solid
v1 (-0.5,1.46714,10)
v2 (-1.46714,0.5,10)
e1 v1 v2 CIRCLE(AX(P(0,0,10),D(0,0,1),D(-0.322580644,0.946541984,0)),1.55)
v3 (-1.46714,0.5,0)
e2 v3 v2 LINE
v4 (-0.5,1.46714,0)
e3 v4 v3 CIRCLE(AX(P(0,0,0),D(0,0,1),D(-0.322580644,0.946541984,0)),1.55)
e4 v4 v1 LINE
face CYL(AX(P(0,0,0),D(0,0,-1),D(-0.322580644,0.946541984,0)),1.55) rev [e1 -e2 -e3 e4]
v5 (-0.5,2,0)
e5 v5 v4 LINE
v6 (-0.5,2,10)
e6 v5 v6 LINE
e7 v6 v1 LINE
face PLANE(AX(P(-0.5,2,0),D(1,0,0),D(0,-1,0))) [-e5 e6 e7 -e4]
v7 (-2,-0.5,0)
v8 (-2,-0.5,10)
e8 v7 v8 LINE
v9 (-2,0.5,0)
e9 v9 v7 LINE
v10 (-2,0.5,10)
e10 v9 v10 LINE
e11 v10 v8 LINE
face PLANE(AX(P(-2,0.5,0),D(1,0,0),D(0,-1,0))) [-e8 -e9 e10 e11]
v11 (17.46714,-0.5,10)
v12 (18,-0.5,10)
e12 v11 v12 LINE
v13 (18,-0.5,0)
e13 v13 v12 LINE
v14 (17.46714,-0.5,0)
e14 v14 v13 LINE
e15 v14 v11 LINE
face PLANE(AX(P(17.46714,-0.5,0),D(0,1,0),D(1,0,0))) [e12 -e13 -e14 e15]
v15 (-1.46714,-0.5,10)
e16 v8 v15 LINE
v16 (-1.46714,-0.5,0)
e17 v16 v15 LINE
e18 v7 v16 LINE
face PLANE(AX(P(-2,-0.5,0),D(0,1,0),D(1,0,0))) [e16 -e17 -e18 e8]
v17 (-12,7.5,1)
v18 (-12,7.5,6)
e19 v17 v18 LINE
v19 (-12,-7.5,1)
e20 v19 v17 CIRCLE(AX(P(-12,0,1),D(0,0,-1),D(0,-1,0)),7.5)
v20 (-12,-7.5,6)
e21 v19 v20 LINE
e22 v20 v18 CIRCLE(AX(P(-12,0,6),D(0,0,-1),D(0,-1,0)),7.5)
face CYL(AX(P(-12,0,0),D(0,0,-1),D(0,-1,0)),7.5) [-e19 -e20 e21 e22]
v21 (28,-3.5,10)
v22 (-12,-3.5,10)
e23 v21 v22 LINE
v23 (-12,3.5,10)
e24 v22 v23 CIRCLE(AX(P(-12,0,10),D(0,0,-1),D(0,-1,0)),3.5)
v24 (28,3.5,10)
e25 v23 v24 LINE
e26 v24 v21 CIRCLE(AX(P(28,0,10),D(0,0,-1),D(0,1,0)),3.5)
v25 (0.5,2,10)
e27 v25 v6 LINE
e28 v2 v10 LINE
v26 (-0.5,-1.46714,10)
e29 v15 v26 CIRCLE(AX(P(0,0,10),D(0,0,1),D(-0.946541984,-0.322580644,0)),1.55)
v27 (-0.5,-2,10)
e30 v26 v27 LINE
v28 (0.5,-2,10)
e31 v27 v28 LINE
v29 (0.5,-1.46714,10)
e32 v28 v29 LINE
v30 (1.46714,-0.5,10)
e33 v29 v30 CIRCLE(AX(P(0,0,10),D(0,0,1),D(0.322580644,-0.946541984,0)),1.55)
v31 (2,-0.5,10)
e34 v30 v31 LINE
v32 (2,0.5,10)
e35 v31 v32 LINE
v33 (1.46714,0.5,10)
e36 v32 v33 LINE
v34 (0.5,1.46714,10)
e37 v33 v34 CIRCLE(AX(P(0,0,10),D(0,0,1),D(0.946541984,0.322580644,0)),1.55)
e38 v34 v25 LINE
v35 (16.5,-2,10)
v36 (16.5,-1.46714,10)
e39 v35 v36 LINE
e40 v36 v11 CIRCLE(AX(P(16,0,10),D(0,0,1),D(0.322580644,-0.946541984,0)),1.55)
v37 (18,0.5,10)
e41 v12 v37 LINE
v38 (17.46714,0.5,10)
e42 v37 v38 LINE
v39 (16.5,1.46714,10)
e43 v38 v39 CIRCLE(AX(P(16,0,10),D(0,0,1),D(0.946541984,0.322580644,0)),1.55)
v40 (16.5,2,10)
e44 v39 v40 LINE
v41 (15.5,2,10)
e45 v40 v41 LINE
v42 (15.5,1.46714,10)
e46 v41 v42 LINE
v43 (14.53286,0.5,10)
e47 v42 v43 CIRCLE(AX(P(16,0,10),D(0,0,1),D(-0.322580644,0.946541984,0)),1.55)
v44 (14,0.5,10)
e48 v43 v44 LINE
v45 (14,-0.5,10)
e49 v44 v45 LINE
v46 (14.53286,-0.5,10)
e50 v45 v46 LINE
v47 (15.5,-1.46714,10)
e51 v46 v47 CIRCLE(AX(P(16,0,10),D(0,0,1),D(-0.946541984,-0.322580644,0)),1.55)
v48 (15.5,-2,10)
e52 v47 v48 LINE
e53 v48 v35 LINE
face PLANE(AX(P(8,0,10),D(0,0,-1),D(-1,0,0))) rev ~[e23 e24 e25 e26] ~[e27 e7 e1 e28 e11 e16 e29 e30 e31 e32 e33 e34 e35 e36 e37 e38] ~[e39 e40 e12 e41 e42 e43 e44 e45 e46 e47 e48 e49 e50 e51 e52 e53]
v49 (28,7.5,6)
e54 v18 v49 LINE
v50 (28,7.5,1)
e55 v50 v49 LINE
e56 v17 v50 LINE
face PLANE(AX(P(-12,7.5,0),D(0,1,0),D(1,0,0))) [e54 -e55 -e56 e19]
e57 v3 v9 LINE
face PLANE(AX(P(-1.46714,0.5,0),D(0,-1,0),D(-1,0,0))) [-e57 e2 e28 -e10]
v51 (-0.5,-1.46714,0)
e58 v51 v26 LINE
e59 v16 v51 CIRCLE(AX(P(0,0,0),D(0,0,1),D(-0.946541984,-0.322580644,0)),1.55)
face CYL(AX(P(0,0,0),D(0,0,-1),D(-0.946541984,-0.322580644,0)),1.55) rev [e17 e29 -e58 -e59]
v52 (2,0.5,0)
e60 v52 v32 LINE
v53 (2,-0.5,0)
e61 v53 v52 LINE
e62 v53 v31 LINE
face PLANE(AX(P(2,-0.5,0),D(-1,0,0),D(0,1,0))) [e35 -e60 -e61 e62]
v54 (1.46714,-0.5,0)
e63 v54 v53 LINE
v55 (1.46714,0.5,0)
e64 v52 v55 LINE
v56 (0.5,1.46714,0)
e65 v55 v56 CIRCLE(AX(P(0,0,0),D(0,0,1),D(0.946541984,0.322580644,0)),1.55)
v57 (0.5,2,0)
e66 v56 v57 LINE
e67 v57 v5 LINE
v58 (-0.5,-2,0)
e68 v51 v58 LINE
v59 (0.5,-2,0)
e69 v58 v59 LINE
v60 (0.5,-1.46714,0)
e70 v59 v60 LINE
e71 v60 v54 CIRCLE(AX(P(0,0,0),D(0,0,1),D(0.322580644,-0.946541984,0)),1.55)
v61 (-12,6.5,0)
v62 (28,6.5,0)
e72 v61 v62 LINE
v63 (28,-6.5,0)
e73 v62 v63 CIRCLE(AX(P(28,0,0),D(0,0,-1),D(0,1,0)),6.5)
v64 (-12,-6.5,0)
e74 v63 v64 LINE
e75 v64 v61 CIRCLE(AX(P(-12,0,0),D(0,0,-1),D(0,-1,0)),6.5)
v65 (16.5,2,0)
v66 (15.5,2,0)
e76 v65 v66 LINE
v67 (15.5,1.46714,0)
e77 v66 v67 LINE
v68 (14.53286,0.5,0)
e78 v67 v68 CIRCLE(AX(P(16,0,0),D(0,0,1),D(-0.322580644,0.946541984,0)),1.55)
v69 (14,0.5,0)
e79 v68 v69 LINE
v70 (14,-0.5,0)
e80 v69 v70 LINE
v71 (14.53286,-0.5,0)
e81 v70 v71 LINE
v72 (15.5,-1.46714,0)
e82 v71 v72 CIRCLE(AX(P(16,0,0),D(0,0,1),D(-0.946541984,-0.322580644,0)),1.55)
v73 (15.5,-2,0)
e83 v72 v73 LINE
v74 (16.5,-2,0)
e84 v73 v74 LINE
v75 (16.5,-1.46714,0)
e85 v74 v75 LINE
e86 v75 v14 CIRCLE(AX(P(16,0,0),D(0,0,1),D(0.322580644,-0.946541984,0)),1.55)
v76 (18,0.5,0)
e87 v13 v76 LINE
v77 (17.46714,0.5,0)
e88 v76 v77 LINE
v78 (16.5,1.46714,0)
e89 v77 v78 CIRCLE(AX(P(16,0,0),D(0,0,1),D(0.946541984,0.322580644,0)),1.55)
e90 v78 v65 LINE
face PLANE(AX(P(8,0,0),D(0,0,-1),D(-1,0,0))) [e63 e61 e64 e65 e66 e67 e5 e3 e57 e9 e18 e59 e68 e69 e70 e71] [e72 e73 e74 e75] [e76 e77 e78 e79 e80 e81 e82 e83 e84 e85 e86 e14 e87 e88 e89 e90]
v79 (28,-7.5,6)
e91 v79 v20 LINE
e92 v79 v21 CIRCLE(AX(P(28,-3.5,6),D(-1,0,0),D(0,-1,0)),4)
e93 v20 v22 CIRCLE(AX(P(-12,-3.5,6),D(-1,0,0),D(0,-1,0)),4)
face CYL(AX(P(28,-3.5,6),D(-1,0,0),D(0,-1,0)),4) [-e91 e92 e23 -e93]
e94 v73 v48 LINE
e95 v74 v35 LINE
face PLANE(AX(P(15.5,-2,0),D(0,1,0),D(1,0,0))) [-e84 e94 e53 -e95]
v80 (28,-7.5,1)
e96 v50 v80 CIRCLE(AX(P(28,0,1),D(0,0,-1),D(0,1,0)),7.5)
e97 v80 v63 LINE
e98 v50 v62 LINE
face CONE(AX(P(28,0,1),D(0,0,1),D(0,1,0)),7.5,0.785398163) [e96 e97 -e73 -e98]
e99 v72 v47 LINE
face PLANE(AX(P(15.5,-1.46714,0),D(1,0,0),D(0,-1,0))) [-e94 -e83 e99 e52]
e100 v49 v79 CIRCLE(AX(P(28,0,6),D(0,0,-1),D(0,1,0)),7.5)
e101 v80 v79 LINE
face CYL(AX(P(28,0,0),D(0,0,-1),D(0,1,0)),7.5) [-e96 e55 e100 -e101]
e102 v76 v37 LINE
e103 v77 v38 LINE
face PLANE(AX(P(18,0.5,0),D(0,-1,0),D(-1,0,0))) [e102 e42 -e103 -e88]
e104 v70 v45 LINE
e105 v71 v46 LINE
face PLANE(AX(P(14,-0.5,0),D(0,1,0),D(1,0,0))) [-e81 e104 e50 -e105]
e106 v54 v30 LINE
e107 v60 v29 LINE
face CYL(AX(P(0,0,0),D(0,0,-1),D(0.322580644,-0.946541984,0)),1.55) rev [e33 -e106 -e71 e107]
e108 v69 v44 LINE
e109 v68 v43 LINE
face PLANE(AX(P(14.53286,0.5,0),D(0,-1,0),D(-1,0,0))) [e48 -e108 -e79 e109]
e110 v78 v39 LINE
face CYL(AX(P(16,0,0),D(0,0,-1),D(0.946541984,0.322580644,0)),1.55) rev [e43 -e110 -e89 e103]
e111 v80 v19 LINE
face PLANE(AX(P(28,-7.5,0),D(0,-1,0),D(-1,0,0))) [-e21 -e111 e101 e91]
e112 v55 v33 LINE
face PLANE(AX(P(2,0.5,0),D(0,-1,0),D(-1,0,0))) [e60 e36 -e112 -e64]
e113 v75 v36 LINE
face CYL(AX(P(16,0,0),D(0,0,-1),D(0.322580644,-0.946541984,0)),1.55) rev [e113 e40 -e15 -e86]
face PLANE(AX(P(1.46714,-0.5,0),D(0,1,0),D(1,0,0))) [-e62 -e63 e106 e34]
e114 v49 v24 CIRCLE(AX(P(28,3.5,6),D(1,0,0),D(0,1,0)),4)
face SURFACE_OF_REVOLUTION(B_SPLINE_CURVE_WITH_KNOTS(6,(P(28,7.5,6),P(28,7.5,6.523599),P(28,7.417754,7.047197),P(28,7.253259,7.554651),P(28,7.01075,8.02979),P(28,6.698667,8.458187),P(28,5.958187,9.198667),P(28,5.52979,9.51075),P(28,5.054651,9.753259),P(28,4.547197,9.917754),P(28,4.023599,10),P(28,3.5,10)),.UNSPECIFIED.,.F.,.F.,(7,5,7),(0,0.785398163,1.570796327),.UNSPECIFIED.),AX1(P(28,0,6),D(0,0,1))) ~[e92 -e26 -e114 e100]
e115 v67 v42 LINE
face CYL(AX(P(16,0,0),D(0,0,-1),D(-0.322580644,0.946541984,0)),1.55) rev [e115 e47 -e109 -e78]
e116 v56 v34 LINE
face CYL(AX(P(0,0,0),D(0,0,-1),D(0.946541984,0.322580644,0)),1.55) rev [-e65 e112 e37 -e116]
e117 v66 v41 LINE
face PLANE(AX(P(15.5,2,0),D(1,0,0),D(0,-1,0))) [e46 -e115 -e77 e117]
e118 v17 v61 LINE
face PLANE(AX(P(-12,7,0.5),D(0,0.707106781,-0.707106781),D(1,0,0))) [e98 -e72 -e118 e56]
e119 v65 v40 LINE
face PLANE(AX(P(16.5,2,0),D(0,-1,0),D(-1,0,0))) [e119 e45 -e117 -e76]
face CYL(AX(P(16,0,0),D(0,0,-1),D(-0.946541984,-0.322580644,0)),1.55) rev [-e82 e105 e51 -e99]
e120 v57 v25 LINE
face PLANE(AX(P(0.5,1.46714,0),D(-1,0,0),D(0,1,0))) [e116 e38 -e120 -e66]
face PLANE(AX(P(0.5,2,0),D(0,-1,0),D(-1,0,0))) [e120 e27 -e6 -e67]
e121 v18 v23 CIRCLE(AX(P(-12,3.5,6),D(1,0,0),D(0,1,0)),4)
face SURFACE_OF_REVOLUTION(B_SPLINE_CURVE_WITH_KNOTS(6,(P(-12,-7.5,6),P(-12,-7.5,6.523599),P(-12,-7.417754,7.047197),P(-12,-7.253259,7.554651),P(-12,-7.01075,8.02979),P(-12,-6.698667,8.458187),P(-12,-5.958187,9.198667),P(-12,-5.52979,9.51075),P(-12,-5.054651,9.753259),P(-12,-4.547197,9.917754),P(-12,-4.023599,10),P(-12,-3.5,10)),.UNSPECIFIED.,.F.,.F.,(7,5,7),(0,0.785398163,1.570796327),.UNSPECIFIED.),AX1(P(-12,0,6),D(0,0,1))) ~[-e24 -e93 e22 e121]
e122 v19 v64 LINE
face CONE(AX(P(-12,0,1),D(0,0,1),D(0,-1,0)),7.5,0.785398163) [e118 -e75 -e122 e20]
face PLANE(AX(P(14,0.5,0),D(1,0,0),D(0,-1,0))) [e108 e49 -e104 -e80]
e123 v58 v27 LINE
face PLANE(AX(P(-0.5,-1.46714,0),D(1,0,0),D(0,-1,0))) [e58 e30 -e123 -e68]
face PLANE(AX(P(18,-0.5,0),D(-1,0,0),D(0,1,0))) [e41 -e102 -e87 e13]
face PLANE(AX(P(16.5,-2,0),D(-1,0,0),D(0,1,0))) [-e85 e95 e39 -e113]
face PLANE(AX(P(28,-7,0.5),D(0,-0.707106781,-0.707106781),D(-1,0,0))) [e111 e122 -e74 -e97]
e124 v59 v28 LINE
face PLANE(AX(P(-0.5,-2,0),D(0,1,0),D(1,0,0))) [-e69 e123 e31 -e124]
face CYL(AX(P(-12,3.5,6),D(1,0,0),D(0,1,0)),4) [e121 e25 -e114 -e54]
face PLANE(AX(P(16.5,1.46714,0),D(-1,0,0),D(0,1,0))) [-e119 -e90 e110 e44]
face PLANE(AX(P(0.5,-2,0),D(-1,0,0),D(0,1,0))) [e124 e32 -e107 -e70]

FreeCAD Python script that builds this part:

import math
import FreeCAD as App
import Part
import Sketcher


def edges_at(feature, points):
    """Names of the edges that pass closest to the given points."""
    edges = feature.Shape.Edges
    near = lambda p: min(range(len(edges)), key=lambda i: edges[i].distToShape(Part.Vertex(*p))[0])
    return sorted({f"Edge{near(p) + 1}" for p in points})

doc = App.newDocument("Part")
body = doc.addObject("PartDesign::Body", "Body")

# Sketch on XY plane
sketch1 = body.newObject("Sketcher::SketchObject", "Sketch")
sketch1.AttachmentSupport = (doc.getObject("XY_Plane"), [""])
sketch1.MapMode = "FlatFace"
sketch1.addGeometry([
    Part.LineSegment(App.Vector(28, 7.5, 0), App.Vector(-12, 7.5, 0)),  # 0
    Part.ArcOfCircle(Part.Circle(App.Vector(-12, 0, 0), App.Vector(0, 0, 1), 7.5), math.radians(90), math.radians(270)),  # 1
    Part.LineSegment(App.Vector(-12, -7.5, 0), App.Vector(28, -7.5, 0)),  # 2
    Part.ArcOfCircle(Part.Circle(App.Vector(28, 0, 0), App.Vector(0, 0, 1), 7.5), math.radians(-90), math.radians(90)),  # 3
    Part.LineSegment(App.Vector(18, -0.5, 0), App.Vector(17.5, -0.5, 0)),  # 4
    Part.ArcOfCircle(Part.Circle(App.Vector(16, 0, 0), App.Vector(0, 0, 1), 1.5), math.radians(-71), math.radians(-19)),  # 5
    Part.LineSegment(App.Vector(16.5, -1.5, 0), App.Vector(16.5, -2, 0)),  # 6
    Part.LineSegment(App.Vector(16.5, -2, 0), App.Vector(15.5, -2, 0)),  # 7
    Part.LineSegment(App.Vector(15.5, -2, 0), App.Vector(15.5, -1.5, 0)),  # 8
    Part.ArcOfCircle(Part.Circle(App.Vector(16, 0, 0), App.Vector(0, 0, 1), 1.5), math.radians(-161), math.radians(-109)),  # 9
    Part.LineSegment(App.Vector(14.5, -0.5, 0), App.Vector(14, -0.5, 0)),  # 10
    Part.LineSegment(App.Vector(14, -0.5, 0), App.Vector(14, 0.5, 0)),  # 11
    Part.LineSegment(App.Vector(14, 0.5, 0), App.Vector(14.5, 0.5, 0)),  # 12
    Part.ArcOfCircle(Part.Circle(App.Vector(16, 0, 0), App.Vector(0, 0, 1), 1.5), math.radians(109), math.radians(161)),  # 13
    Part.LineSegment(App.Vector(15.5, 1.5, 0), App.Vector(15.5, 2, 0)),  # 14
    Part.LineSegment(App.Vector(15.5, 2, 0), App.Vector(16.5, 2, 0)),  # 15
    Part.LineSegment(App.Vector(16.5, 2, 0), App.Vector(16.5, 1.5, 0)),  # 16
    Part.ArcOfCircle(Part.Circle(App.Vector(16, 0, 0), App.Vector(0, 0, 1), 1.5), math.radians(19), math.radians(71)),  # 17
    Part.LineSegment(App.Vector(17.5, 0.5, 0), App.Vector(18, 0.5, 0)),  # 18
    Part.LineSegment(App.Vector(18, 0.5, 0), App.Vector(18, -0.5, 0)),  # 19
    Part.LineSegment(App.Vector(-0.5, -2, 0), App.Vector(-0.5, -1.5, 0)),  # 20
    Part.ArcOfCircle(Part.Circle(App.Vector(0, 0, 0), App.Vector(0, 0, 1), 1.5), math.radians(-161), math.radians(-109)),  # 21
    Part.LineSegment(App.Vector(-1.5, -0.5, 0), App.Vector(-2, -0.5, 0)),  # 22
    Part.LineSegment(App.Vector(-2, -0.5, 0), App.Vector(-2, 0.5, 0)),  # 23
    Part.LineSegment(App.Vector(-2, 0.5, 0), App.Vector(-1.5, 0.5, 0)),  # 24
    Part.ArcOfCircle(Part.Circle(App.Vector(0, 0, 0), App.Vector(0, 0, 1), 1.5), math.radians(109), math.radians(161)),  # 25
    Part.LineSegment(App.Vector(-0.5, 1.5, 0), App.Vector(-0.5, 2, 0)),  # 26
    Part.LineSegment(App.Vector(-0.5, 2, 0), App.Vector(0.5, 2, 0)),  # 27
    Part.LineSegment(App.Vector(0.5, 2, 0), App.Vector(0.5, 1.5, 0)),  # 28
    Part.ArcOfCircle(Part.Circle(App.Vector(0, 0, 0), App.Vector(0, 0, 1), 1.5), math.radians(19), math.radians(71)),  # 29
    Part.LineSegment(App.Vector(1.5, 0.5, 0), App.Vector(2, 0.5, 0)),  # 30
    Part.LineSegment(App.Vector(2, 0.5, 0), App.Vector(2, -0.5, 0)),  # 31
    Part.LineSegment(App.Vector(2, -0.5, 0), App.Vector(1.5, -0.5, 0)),  # 32
    Part.ArcOfCircle(Part.Circle(App.Vector(0, 0, 0), App.Vector(0, 0, 1), 1.5), math.radians(-71), math.radians(-19)),  # 33
    Part.LineSegment(App.Vector(0.5, -1.5, 0), App.Vector(0.5, -2, 0)),  # 34
    Part.LineSegment(App.Vector(0.5, -2, 0), App.Vector(-0.5, -2, 0)),  # 35
], False)
sketch1.addConstraint([
    Sketcher.Constraint("Tangent", 0, 2, 1, 1),
    Sketcher.Constraint("Tangent", 1, 2, 2, 1),
    Sketcher.Constraint("Tangent", 2, 2, 3, 1),
    Sketcher.Constraint("Tangent", 3, 2, 0, 1),
    Sketcher.Constraint("Coincident", 4, 2, 5, 2),
    Sketcher.Constraint("Coincident", 5, 1, 6, 1),
    Sketcher.Constraint("Coincident", 6, 2, 7, 1),
    Sketcher.Constraint("Coincident", 7, 2, 8, 1),
    Sketcher.Constraint("Coincident", 8, 2, 9, 2),
    Sketcher.Constraint("Coincident", 9, 1, 10, 1),
    Sketcher.Constraint("Coincident", 10, 2, 11, 1),
    Sketcher.Constraint("Coincident", 11, 2, 12, 1),
    Sketcher.Constraint("Coincident", 12, 2, 13, 2),
    Sketcher.Constraint("Coincident", 13, 1, 14, 1),
    Sketcher.Constraint("Coincident", 14, 2, 15, 1),
    Sketcher.Constraint("Coincident", 15, 2, 16, 1),
    Sketcher.Constraint("Coincident", 16, 2, 17, 2),
    Sketcher.Constraint("Coincident", 17, 1, 18, 1),
    Sketcher.Constraint("Coincident", 18, 2, 19, 1),
    Sketcher.Constraint("Coincident", 19, 2, 4, 1),
    Sketcher.Constraint("Coincident", 20, 2, 21, 2),
    Sketcher.Constraint("Coincident", 21, 1, 22, 1),
    Sketcher.Constraint("Coincident", 22, 2, 23, 1),
    Sketcher.Constraint("Coincident", 23, 2, 24, 1),
    Sketcher.Constraint("Coincident", 24, 2, 25, 2),
    Sketcher.Constraint("Coincident", 25, 1, 26, 1),
    Sketcher.Constraint("Coincident", 26, 2, 27, 1),
    Sketcher.Constraint("Coincident", 27, 2, 28, 1),
    Sketcher.Constraint("Coincident", 28, 2, 29, 2),
    Sketcher.Constraint("Coincident", 29, 1, 30, 1),
    Sketcher.Constraint("Coincident", 30, 2, 31, 1),
    Sketcher.Constraint("Coincident", 31, 2, 32, 1),
    Sketcher.Constraint("Coincident", 32, 2, 33, 2),
    Sketcher.Constraint("Coincident", 33, 1, 34, 1),
    Sketcher.Constraint("Coincident", 34, 2, 35, 1),
    Sketcher.Constraint("Coincident", 35, 2, 20, 1),
    Sketcher.Constraint("Horizontal", 0),
    Sketcher.Constraint("Horizontal", 2),
    Sketcher.Constraint("Horizontal", 4),
    Sketcher.Constraint("Vertical", 6),
    Sketcher.Constraint("Horizontal", 7),
    Sketcher.Constraint("Vertical", 8),
    Sketcher.Constraint("Horizontal", 10),
    Sketcher.Constraint("Vertical", 11),
    Sketcher.Constraint("Horizontal", 12),
    Sketcher.Constraint("Vertical", 14),
    Sketcher.Constraint("Horizontal", 15),
    Sketcher.Constraint("Vertical", 16),
    Sketcher.Constraint("Horizontal", 18),
    Sketcher.Constraint("Vertical", 19),
    Sketcher.Constraint("Vertical", 20),
    Sketcher.Constraint("Horizontal", 22),
    Sketcher.Constraint("Vertical", 23),
    Sketcher.Constraint("Horizontal", 24),
    Sketcher.Constraint("Vertical", 26),
    Sketcher.Constraint("Horizontal", 27),
    Sketcher.Constraint("Vertical", 28),
    Sketcher.Constraint("Horizontal", 30),
    Sketcher.Constraint("Vertical", 31),
    Sketcher.Constraint("Horizontal", 32),
    Sketcher.Constraint("Vertical", 34),
    Sketcher.Constraint("Horizontal", 35),
    Sketcher.Constraint("Coincident", 21, 3, -1, 1),
    Sketcher.Constraint("Coincident", 25, 3, -1, 1),
    Sketcher.Constraint("Coincident", 29, 3, -1, 1),
    Sketcher.Constraint("Coincident", 33, 3, -1, 1),
    Sketcher.Constraint("Coincident", 9, 3, 5, 3),
    Sketcher.Constraint("Coincident", 13, 3, 5, 3),
    Sketcher.Constraint("Coincident", 17, 3, 5, 3),
    Sketcher.Constraint("Equal", 5, 9),
    Sketcher.Constraint("Equal", 9, 13),
    Sketcher.Constraint("Equal", 13, 17),
    Sketcher.Constraint("Equal", 17, 21),
    Sketcher.Constraint("Equal", 21, 25),
    Sketcher.Constraint("Equal", 25, 29),
    Sketcher.Constraint("Equal", 29, 33),
    Sketcher.Constraint("Symmetric", 22, 2, 30, 2, -1, 1),
    Sketcher.Constraint("Symmetric", 26, 2, 34, 2, -1, 1),
    Sketcher.Constraint("Symmetric", 9, 1, 12, 2, -1),
    Sketcher.Constraint("Symmetric", 7, 2, 14, 2, -1),
    Sketcher.Constraint("PointOnObject", 1, 3, -1),
    Sketcher.Constraint("Horizontal", 5, 1, 8, 2),
    Sketcher.Constraint("Horizontal", 4, 2, 9, 1),
    Sketcher.Constraint("Horizontal", 13, 1, 16, 2),
    Sketcher.Constraint("Horizontal", 12, 2, 17, 1),
    Sketcher.Constraint("Horizontal", 8, 2, 20, 2),
    Sketcher.Constraint("Horizontal", 19, 2, 21, 1),
    Sketcher.Constraint("Horizontal", 18, 2, 23, 2),
    Sketcher.Constraint("Horizontal", 16, 2, 25, 1),
    Sketcher.Constraint("Horizontal", 15, 2, 26, 2),
    Sketcher.Constraint("Horizontal", 25, 1, 28, 2),
    Sketcher.Constraint("Horizontal", 22, 2, 31, 2),
    Sketcher.Constraint("Equal", 4, 10),
    Sketcher.Constraint("Equal", 18, 22),
    Sketcher.Constraint("Equal", 32, 6),
    Sketcher.Constraint("Equal", 35, 11),
    Sketcher.Constraint("Radius", 1, 7.5),
    Sketcher.Constraint("DistanceX", 0, 2, 0, 1, 40.0),
    Sketcher.Constraint("DistanceX", 7, 2, 7, 1, 1.0),
    Sketcher.Constraint("Radius", 5, 1.55),
    Sketcher.Constraint("DistanceX", 1, 3, -1, 1, 12.0),
    Sketcher.Constraint("DistanceX", -1, 1, 5, 3, 16.0),
    Sketcher.Constraint("DistanceY", 6, 2, -1, 1, 2.0),
])
pad1 = body.newObject("PartDesign::Pad", "Pad")
pad1.Profile = sketch1
pad1.Length = 10
doc.recompute()

fillet = body.newObject("PartDesign::Fillet", "Fillet")
fillet.Base = (pad1, edges_at(pad1, [
    (35.5, 0, 10),
    (8, 7.5, 10),
    (-19.5, 0, 10),
    (8, -7.5, 10),
]))
fillet.Radius = 4
doc.recompute()

chamfer = body.newObject("PartDesign::Chamfer", "Chamfer")
chamfer.Base = (fillet, edges_at(fillet, [
    (8, 7.5, 0),
    (35.5, 0, 0),
    (8, -7.5, 0),
    (-19.5, 0, 0),
]))
chamfer.Size = 1

doc.recompute()
